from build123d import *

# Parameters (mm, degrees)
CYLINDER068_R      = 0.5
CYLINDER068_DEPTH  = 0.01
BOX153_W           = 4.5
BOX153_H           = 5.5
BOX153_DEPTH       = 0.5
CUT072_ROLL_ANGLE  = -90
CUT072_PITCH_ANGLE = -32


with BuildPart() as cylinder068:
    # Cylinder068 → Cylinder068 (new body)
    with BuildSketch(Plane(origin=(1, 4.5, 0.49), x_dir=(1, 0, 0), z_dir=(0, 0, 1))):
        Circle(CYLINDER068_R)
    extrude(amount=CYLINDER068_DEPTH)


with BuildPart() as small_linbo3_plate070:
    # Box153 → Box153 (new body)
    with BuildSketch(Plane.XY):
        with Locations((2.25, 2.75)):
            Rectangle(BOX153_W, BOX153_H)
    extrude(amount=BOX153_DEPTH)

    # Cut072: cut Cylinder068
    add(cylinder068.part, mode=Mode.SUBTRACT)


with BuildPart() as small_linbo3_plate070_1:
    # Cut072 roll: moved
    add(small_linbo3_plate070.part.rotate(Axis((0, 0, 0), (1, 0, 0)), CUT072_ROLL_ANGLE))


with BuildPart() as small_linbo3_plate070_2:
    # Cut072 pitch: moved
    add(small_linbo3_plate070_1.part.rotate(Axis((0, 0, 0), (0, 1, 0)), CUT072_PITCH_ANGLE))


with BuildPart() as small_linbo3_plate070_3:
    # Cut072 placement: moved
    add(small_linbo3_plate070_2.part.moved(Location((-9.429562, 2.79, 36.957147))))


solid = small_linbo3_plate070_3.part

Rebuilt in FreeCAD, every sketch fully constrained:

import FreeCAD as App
import Part
import Sketcher

doc = App.newDocument("Part")
body = doc.addObject("PartDesign::Body", "Body")

# Sketch on XY plane
sketch1 = body.newObject("Sketcher::SketchObject", "Sketch")
sketch1.AttachmentSupport = (doc.getObject("XY_Plane"), [""])
sketch1.MapMode = "FlatFace"
sketch1.AttachmentOffset = App.Placement(App.Vector(0, 0, 0.49), App.Rotation())
sketch1.addGeometry(Part.Circle(App.Vector(1, 4.5, 0), App.Vector(0, 0, 1), 0.5), False)
sketch1.addConstraint([
    Sketcher.Constraint("Diameter", 0, 1.0),
    Sketcher.Constraint("DistanceX", -1, 1, 0, 3, 1.0),
    Sketcher.Constraint("DistanceY", -1, 1, 0, 3, 4.5),
])
pad1 = body.newObject("PartDesign::Pad", "Pad")
pad1.Profile = sketch1
pad1.Length = 0.01
body2 = doc.addObject("PartDesign::Body", "Body001")

# Sketch on XY plane
sketch2 = body2.newObject("Sketcher::SketchObject", "Sketch001")
sketch2.AttachmentSupport = (doc.getObject("XY_Plane001"), [""])
sketch2.MapMode = "FlatFace"
sketch2.addGeometry([
    Part.LineSegment(App.Vector(0, 5.5, 0), App.Vector(0, 0, 0)),
    Part.LineSegment(App.Vector(0, 0, 0), App.Vector(4.5, 0, 0)),
    Part.LineSegment(App.Vector(4.5, 0, 0), App.Vector(4.5, 5.5, 0)),
    Part.LineSegment(App.Vector(4.5, 5.5, 0), App.Vector(0, 5.5, 0)),
], False)
sketch2.addConstraint([
    Sketcher.Constraint("Coincident", 0, 2, 1, 1),
    Sketcher.Constraint("Coincident", 1, 2, 2, 1),
    Sketcher.Constraint("Coincident", 2, 2, 3, 1),
    Sketcher.Constraint("Coincident", 3, 2, 0, 1),
    Sketcher.Constraint("Vertical", 0),
    Sketcher.Constraint("Horizontal", 1),
    Sketcher.Constraint("Vertical", 2),
    Sketcher.Constraint("Horizontal", 3),
    Sketcher.Constraint("Coincident", 0, 2, -1, 1),
    Sketcher.Constraint("DistanceX", 1, 1, 1, 2, 4.5),
    Sketcher.Constraint("DistanceY", 0, 2, 0, 1, 5.5),
])
pad2 = body2.newObject("PartDesign::Pad", "Pad001")
pad2.Profile = sketch2
pad2.Length = 0.5
doc.recompute()

boolean = body2.newObject("PartDesign::Boolean", "Boolean")
boolean.Type = "Cut"
boolean.addObjects([body])
body3 = doc.addObject("PartDesign::Body", "Body002")
doc.recompute()

body2.Placement = App.Placement(App.Vector(0, 0, 0), App.Rotation(App.Vector(1, 0, 0), 270))
boolean2 = body3.newObject("PartDesign::Boolean", "Boolean001")
boolean2.Type = "Fuse"
boolean2.addObjects([body2])
body4 = doc.addObject("PartDesign::Body", "Body003")
doc.recompute()

body3.Placement = App.Placement(App.Vector(0, 0, 0), App.Rotation(App.Vector(0, 1, 0), 328))
boolean3 = body4.newObject("PartDesign::Boolean", "Boolean002")
boolean3.Type = "Fuse"
boolean3.addObjects([body3])
body5 = doc.addObject("PartDesign::Body", "Body004")
doc.recompute()

body4.Placement = App.Placement(App.Vector(-9.429562, 2.79, 36.957147), App.Rotation(App.Vector(0, 0, 1), 0))
boolean4 = body5.newObject("PartDesign::Boolean", "Boolean003")
boolean4.Type = "Fuse"
boolean4.addObjects([body4])

doc.recompute()
